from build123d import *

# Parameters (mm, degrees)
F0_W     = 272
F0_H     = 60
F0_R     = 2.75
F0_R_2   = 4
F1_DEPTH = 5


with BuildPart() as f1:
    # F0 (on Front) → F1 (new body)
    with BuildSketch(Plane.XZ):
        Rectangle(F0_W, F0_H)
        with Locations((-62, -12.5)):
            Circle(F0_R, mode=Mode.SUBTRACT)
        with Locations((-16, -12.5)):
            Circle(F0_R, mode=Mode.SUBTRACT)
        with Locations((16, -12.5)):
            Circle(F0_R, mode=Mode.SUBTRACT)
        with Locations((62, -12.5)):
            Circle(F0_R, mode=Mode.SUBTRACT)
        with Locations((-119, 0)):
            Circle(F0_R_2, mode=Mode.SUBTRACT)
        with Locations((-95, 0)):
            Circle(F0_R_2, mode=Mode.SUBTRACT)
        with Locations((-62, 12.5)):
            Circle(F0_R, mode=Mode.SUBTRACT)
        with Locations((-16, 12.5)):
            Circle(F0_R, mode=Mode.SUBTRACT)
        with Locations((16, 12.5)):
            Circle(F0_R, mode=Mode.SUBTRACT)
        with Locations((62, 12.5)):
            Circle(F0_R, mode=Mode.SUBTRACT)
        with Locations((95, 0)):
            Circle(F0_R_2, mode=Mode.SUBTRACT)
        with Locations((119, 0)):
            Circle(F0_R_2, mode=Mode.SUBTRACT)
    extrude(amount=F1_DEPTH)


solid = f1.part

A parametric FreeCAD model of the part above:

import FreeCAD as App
import Part
import Sketcher
from FreeCAD import Vector

doc = App.newDocument("Part")
body = doc.addObject("PartDesign::Body", "Body")

# Sketch on XZ plane
sketch1 = doc.addObject("Sketcher::SketchObject", "Sketch")
body.addObject(sketch1)
sketch1.AttachmentSupport = (doc.XZ_Plane, [""])
sketch1.MapMode = "FlatFace"
sketch1.addGeometry(Part.LineSegment(Vector(-136, 30, 0), Vector(-136, -30, 0)), False)
sketch1.addGeometry(Part.LineSegment(Vector(-136, -30, 0), Vector(136, -30, 0)), False)
sketch1.addGeometry(Part.LineSegment(Vector(136, -30, 0), Vector(136, 30, 0)), False)
sketch1.addGeometry(Part.LineSegment(Vector(136, 30, 0), Vector(-136, 30, 0)), False)
sketch1.addGeometry(Part.Circle(Vector(-62, -12.5, 0), Vector(0, 0, 1), 2.8), False)
sketch1.addGeometry(Part.Circle(Vector(-16, -12.5, 0), Vector(0, 0, 1), 2.8), False)
sketch1.addGeometry(Part.Circle(Vector(16, -12.5, 0), Vector(0, 0, 1), 2.8), False)
sketch1.addGeometry(Part.Circle(Vector(62, -12.5, 0), Vector(0, 0, 1), 2.8), False)
sketch1.addGeometry(Part.Circle(Vector(-119, 0, 0), Vector(0, 0, 1), 4), False)
sketch1.addGeometry(Part.Circle(Vector(-95, 0, 0), Vector(0, 0, 1), 4), False)
sketch1.addGeometry(Part.Circle(Vector(-62, 12.5, 0), Vector(0, 0, 1), 2.8), False)
sketch1.addGeometry(Part.Circle(Vector(-16, 12.5, 0), Vector(0, 0, 1), 2.8), False)
sketch1.addGeometry(Part.Circle(Vector(95, 0, 0), Vector(0, 0, 1), 4), False)
sketch1.addGeometry(Part.Circle(Vector(119, 0, 0), Vector(0, 0, 1), 4), False)
sketch1.addGeometry(Part.Circle(Vector(16, 12.5, 0), Vector(0, 0, 1), 2.8), False)
sketch1.addGeometry(Part.Circle(Vector(62, 12.5, 0), Vector(0, 0, 1), 2.8), False)
sketch1.addConstraint(Sketcher.Constraint("Coincident", 0, 2, 1, 1))
sketch1.addConstraint(Sketcher.Constraint("Coincident", 1, 2, 2, 1))
sketch1.addConstraint(Sketcher.Constraint("Coincident", 2, 2, 3, 1))
sketch1.addConstraint(Sketcher.Constraint("Coincident", 3, 2, 0, 1))
sketch1.addConstraint(Sketcher.Constraint("Vertical", 0))
sketch1.addConstraint(Sketcher.Constraint("Horizontal", 1))
sketch1.addConstraint(Sketcher.Constraint("Vertical", 2))
sketch1.addConstraint(Sketcher.Constraint("Horizontal", 3))
sketch1.addConstraint(Sketcher.Constraint("Equal", 4, 5))
sketch1.addConstraint(Sketcher.Constraint("Equal", 5, 6))
sketch1.addConstraint(Sketcher.Constraint("Equal", 6, 7))
sketch1.addConstraint(Sketcher.Constraint("Equal", 8, 9))
sketch1.addConstraint(Sketcher.Constraint("Equal", 7, 10))
sketch1.addConstraint(Sketcher.Constraint("Equal", 10, 11))
sketch1.addConstraint(Sketcher.Constraint("Equal", 9, 12))
sketch1.addConstraint(Sketcher.Constraint("Equal", 12, 13))
sketch1.addConstraint(Sketcher.Constraint("Equal", 11, 14))
sketch1.addConstraint(Sketcher.Constraint("Equal", 14, 15))
sketch1.addConstraint(Sketcher.Constraint("Symmetric", 7, 3, 10, 3, -1, 1))
sketch1.addConstraint(Sketcher.Constraint("Symmetric", 6, 3, 11, 3, -1, 1))
sketch1.addConstraint(Sketcher.Constraint("Symmetric", 9, 3, 12, 3, -1, 1))
sketch1.addConstraint(Sketcher.Constraint("Symmetric", 8, 3, 13, 3, -1, 1))
sketch1.addConstraint(Sketcher.Constraint("Symmetric", 5, 3, 14, 3, -1, 1))
sketch1.addConstraint(Sketcher.Constraint("Symmetric", 4, 3, 15, 3, -1, 1))
sketch1.addConstraint(Sketcher.Constraint("Symmetric", 0, 2, 2, 2, -1, 1))
sketch1.addConstraint(Sketcher.Constraint("Symmetric", 5, 3, 6, 3, -2))
sketch1.addConstraint(Sketcher.Constraint("Symmetric", 4, 3, 7, 3, -2))
sketch1.addConstraint(Sketcher.Constraint("PointOnObject", 8, 3, -1))
sketch1.addConstraint(Sketcher.Constraint("PointOnObject", 9, 3, -1))
sketch1.addConstraint(Sketcher.Constraint("Horizontal", 4, 3, 5, 3))
sketch1.addConstraint(Sketcher.Constraint("Diameter", 8, 8.0))
sketch1.addConstraint(Sketcher.Constraint("Diameter", 4, 5.5))
sketch1.addConstraint(Sketcher.Constraint("DistanceX", 1, 1, 1, 2, 272.0))
sketch1.addConstraint(Sketcher.Constraint("DistanceY", 0, 2, 0, 1, 60.0))
sketch1.addConstraint(Sketcher.Constraint("DistanceX", 4, 3, -1, 1, 62.0))
sketch1.addConstraint(Sketcher.Constraint("DistanceX", 5, 3, -1, 1, 16.0))
sketch1.addConstraint(Sketcher.Constraint("DistanceX", 8, 3, -1, 1, 119.0))
sketch1.addConstraint(Sketcher.Constraint("DistanceX", 9, 3, -1, 1, 95.0))
sketch1.addConstraint(Sketcher.Constraint("DistanceY", 4, 3, 10, 3, 25.0))
pad1 = doc.addObject("PartDesign::Pad", "Pad")
body.addObject(pad1)
pad1.Profile = sketch1
pad1.Length = 5

doc.recompute()
